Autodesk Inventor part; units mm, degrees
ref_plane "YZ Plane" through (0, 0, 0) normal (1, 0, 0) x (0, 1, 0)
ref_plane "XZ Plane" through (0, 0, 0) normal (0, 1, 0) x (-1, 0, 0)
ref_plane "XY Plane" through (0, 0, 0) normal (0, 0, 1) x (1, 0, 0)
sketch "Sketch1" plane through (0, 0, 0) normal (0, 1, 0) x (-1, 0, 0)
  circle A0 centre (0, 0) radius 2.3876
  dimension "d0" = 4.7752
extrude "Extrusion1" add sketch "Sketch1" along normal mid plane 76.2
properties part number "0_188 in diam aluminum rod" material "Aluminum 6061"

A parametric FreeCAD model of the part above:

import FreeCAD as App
import Part
import Sketcher
Q = App.Units.Quantity

doc = App.newDocument("Part")
body = doc.addObject("PartDesign::Body", "Body")

# Sketch on XZ plane
sketch1 = doc.addObject("Sketcher::SketchObject", "Sketch")
body.addObject(sketch1)
sketch1.AttachmentSupport = (doc.XZ_Plane, [""])
sketch1.MapMode = "FlatFace"
sketch1.addGeometry(Part.Circle(App.Vector(0, 0, 0), App.Vector(0, 0, 1), 2.4), False)
sketch1.addConstraint([
    Sketcher.Constraint("Coincident", 0, 3, -1, 1),
    Sketcher.Constraint("Diameter", 0, Q("0.188 in")),
])
pad1 = doc.addObject("PartDesign::Pad", "Pad")
body.addObject(pad1)
pad1.Profile = sketch1
pad1.Length = Q("3 in")
pad1.Midplane = True

doc.recompute()
